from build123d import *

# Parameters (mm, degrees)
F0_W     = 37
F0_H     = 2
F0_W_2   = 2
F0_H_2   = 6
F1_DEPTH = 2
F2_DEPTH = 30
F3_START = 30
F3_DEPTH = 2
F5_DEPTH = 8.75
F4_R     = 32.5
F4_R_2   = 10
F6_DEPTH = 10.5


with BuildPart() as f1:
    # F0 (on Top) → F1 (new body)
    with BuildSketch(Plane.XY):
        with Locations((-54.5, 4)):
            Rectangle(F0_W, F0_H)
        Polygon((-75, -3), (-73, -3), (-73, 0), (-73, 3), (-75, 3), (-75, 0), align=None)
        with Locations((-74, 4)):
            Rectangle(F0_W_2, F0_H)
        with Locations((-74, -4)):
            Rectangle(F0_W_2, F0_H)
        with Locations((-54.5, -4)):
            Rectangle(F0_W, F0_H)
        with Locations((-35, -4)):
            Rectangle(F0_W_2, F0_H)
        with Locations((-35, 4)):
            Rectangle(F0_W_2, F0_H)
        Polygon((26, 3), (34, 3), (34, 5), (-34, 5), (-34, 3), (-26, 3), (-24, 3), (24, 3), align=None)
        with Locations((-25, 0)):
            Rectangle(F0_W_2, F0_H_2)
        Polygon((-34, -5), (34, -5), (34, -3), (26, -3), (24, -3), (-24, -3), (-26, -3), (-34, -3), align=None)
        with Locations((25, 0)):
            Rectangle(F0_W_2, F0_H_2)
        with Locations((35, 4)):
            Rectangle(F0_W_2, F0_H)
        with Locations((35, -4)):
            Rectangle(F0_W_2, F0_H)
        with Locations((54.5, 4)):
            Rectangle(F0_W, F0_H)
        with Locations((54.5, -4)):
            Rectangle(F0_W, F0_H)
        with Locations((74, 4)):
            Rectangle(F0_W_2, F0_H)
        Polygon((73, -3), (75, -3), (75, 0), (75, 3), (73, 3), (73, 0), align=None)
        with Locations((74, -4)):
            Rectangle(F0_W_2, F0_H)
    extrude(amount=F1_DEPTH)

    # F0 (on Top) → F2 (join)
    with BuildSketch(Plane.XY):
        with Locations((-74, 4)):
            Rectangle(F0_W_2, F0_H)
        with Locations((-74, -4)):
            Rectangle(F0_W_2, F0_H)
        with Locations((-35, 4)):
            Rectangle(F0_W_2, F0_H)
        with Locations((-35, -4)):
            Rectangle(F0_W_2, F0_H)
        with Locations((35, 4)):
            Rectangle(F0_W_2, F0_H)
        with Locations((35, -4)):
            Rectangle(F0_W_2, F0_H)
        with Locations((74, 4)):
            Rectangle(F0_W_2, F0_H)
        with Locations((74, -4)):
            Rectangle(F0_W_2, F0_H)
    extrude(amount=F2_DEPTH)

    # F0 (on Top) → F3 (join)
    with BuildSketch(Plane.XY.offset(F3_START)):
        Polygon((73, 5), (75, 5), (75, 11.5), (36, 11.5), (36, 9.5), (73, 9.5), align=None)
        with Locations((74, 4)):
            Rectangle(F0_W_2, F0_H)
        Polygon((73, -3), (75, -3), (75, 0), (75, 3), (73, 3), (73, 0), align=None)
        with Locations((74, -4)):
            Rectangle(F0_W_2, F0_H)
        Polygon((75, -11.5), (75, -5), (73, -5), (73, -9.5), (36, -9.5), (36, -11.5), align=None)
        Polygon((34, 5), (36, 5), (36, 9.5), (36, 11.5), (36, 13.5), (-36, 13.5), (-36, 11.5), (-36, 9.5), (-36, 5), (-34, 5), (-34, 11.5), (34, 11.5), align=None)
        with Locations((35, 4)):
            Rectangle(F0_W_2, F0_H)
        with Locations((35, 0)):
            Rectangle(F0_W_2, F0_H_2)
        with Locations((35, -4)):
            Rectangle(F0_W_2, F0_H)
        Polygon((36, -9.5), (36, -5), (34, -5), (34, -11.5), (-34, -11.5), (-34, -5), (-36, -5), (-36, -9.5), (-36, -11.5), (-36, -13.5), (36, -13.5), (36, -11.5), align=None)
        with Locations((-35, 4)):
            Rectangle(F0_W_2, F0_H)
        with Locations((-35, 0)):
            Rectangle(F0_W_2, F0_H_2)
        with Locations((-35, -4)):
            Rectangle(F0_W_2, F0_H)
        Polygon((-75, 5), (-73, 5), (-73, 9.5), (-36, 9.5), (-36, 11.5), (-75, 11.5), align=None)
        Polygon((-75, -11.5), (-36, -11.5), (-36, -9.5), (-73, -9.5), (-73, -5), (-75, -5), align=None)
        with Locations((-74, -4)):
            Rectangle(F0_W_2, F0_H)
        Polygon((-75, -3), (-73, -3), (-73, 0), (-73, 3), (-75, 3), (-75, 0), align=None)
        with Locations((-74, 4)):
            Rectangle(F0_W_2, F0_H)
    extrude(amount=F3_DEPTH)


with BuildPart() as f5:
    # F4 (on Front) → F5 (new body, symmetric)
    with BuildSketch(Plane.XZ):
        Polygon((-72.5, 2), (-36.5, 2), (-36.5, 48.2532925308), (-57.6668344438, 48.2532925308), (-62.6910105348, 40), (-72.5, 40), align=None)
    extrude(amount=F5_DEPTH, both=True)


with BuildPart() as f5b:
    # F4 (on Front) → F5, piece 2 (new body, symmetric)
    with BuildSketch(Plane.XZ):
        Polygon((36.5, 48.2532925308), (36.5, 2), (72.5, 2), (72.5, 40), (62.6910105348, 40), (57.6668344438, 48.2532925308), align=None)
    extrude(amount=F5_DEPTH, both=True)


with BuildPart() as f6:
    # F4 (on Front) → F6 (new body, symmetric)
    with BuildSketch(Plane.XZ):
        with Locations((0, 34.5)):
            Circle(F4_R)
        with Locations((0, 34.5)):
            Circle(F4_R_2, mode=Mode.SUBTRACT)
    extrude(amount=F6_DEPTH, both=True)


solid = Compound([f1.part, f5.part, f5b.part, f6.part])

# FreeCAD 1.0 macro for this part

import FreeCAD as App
import Part
import Sketcher

V = App.Vector
Q = App.Units.Quantity


def add_polygon(sketch, points):
    """Adds a closed chain of lines whose ends are joined by coincident constraints."""
    first, n = sketch.GeometryCount, len(points)
    for a, b in zip(points, points[1:] + points[:1]):
        sketch.addGeometry(Part.LineSegment(App.Vector(*a, 0), App.Vector(*b, 0)), False)
    for i in range(n):
        sketch.addConstraint(Sketcher.Constraint("Coincident", first + i, 2, first + (i + 1) % n, 1))

doc = App.newDocument("Part")
body = doc.addObject("PartDesign::Body", "Body")

sketch1 = doc.addObject("Sketcher::SketchObject", "Sketch")
body.addObject(sketch1)
sketch1.AttachmentSupport = (doc.XY_Plane, [""])
sketch1.MapMode = "FlatFace"
add_polygon(sketch1, [(-75, -5), (75, -5), (75, 5), (-75, 5)])
add_polygon(sketch1, [(-73, 3), (-26, 3), (-26, -3), (-73, -3)])
add_polygon(sketch1, [(-24, -3), (-24, 3), (24, 3), (24, -3)])
add_polygon(sketch1, [(73, 3), (73, -3), (26, -3), (26, 3)])
sketch1.addConstraint([
    Sketcher.Constraint("Horizontal", 0),
    Sketcher.Constraint("Vertical", 1),
    Sketcher.Constraint("Horizontal", 2),
    Sketcher.Constraint("Vertical", 3),
    Sketcher.Constraint("Horizontal", 4),
    Sketcher.Constraint("Vertical", 5),
    Sketcher.Constraint("Horizontal", 6),
    Sketcher.Constraint("Vertical", 7),
    Sketcher.Constraint("Vertical", 8),
    Sketcher.Constraint("Horizontal", 9),
    Sketcher.Constraint("Vertical", 10),
    Sketcher.Constraint("Horizontal", 11),
    Sketcher.Constraint("Vertical", 12),
    Sketcher.Constraint("Horizontal", 13),
    Sketcher.Constraint("Vertical", 14),
    Sketcher.Constraint("Horizontal", 15),
    Sketcher.Constraint("Symmetric", 0, 2, 2, 2, -1, 1),
    Sketcher.Constraint("Symmetric", 8, 2, 10, 2, -1, 1),
    Sketcher.Constraint("Symmetric", 7, 2, 12, 2, -1, 1),
    Sketcher.Constraint("Symmetric", 5, 2, 14, 2, -1, 1),
    Sketcher.Constraint("Horizontal", 7, 2, 8, 2),
    Sketcher.Constraint("Horizontal", 6, 2, 10, 2),
    Sketcher.Constraint("DistanceX", 0, 1, 0, 2, Q("150 mm")),
    Sketcher.Constraint("DistanceX", 4, 1, 4, 2, Q("47 mm")),
    Sketcher.Constraint("DistanceX", 9, 1, 9, 2, Q("48 mm")),
    Sketcher.Constraint("DistanceY", 1, 1, 1, 2, Q("10 mm")),
    Sketcher.Constraint("DistanceY", 5, 2, 5, 1, Q("6 mm")),
    Sketcher.Constraint("DistanceX", 4, 2, -1, 1, Q("26 mm")),
])
pad1 = doc.addObject("PartDesign::Pad", "Pad")
body.addObject(pad1)
pad1.Profile = sketch1
pad1.Length = 2

sketch2 = doc.addObject("Sketcher::SketchObject", "Sketch001")
body.addObject(sketch2)
sketch2.AttachmentSupport = (doc.XY_Plane, [""])
sketch2.MapMode = "FlatFace"
add_polygon(sketch2, [(-75, 5), (-75, 3), (-73, 3), (-73, 5)])
add_polygon(sketch2, [(-75, -3), (-75, -5), (-73, -5), (-73, -3)])
add_polygon(sketch2, [(-36, 5), (-36, 3), (-34, 3), (-34, 5)])
add_polygon(sketch2, [(-36, -3), (-36, -5), (-34, -5), (-34, -3)])
add_polygon(sketch2, [(34, 5), (34, 3), (36, 3), (36, 5)])
add_polygon(sketch2, [(34, -3), (34, -5), (36, -5), (36, -3)])
add_polygon(sketch2, [(73, 5), (73, 3), (75, 3), (75, 5)])
add_polygon(sketch2, [(73, -3), (73, -5), (75, -5), (75, -3)])
sketch2.addConstraint([
    Sketcher.Constraint("Vertical", 0),
    Sketcher.Constraint("Horizontal", 1),
    Sketcher.Constraint("Vertical", 2),
    Sketcher.Constraint("Horizontal", 3),
    Sketcher.Constraint("Vertical", 4),
    Sketcher.Constraint("Horizontal", 5),
    Sketcher.Constraint("Vertical", 6),
    Sketcher.Constraint("Horizontal", 7),
    Sketcher.Constraint("Vertical", 8),
    Sketcher.Constraint("Horizontal", 9),
    Sketcher.Constraint("Vertical", 10),
    Sketcher.Constraint("Horizontal", 11),
    Sketcher.Constraint("Vertical", 12),
    Sketcher.Constraint("Horizontal", 13),
    Sketcher.Constraint("Vertical", 14),
    Sketcher.Constraint("Horizontal", 15),
    Sketcher.Constraint("Vertical", 16),
    Sketcher.Constraint("Horizontal", 17),
    Sketcher.Constraint("Vertical", 18),
    Sketcher.Constraint("Horizontal", 19),
    Sketcher.Constraint("Vertical", 20),
    Sketcher.Constraint("Horizontal", 21),
    Sketcher.Constraint("Vertical", 22),
    Sketcher.Constraint("Horizontal", 23),
    Sketcher.Constraint("Vertical", 24),
    Sketcher.Constraint("Horizontal", 25),
    Sketcher.Constraint("Vertical", 26),
    Sketcher.Constraint("Horizontal", 27),
    Sketcher.Constraint("Vertical", 28),
    Sketcher.Constraint("Horizontal", 29),
    Sketcher.Constraint("Vertical", 30),
    Sketcher.Constraint("Horizontal", 31),
    Sketcher.Constraint("Symmetric", 14, 2, 16, 2, -1, 1),
    Sketcher.Constraint("Symmetric", 12, 2, 18, 2, -1, 1),
    Sketcher.Constraint("Symmetric", 10, 2, 20, 2, -1, 1),
    Sketcher.Constraint("Symmetric", 8, 2, 22, 2, -1, 1),
    Sketcher.Constraint("Symmetric", 6, 2, 24, 2, -1, 1),
    Sketcher.Constraint("Symmetric", 4, 2, 26, 2, -1, 1),
    Sketcher.Constraint("Symmetric", 2, 2, 28, 2, -1, 1),
    Sketcher.Constraint("Symmetric", 0, 2, 30, 2, -1, 1),
    Sketcher.Constraint("Symmetric", 9, 2, 16, 2, -2),
    Sketcher.Constraint("Symmetric", 11, 2, 18, 2, -2),
    Sketcher.Constraint("Symmetric", 1, 2, 24, 2, -2),
    Sketcher.Constraint("Symmetric", 3, 2, 26, 2, -2),
    Sketcher.Constraint("Horizontal", 1, 2, 8, 2),
    Sketcher.Constraint("Horizontal", 3, 2, 10, 2),
    Sketcher.Constraint("Equal", 7, 9),
    Sketcher.Constraint("Equal", 31, 0),
    Sketcher.Constraint("DistanceX", 1, 1, 1, 2, Q("2 mm")),
    Sketcher.Constraint("DistanceX", 0, 2, -1, 1, Q("75 mm")),
    Sketcher.Constraint("DistanceY", -1, 1, 0, 2, Q("3 mm")),
    Sketcher.Constraint("DistanceX", 8, 2, -1, 1, Q("36 mm")),
])
pad2 = doc.addObject("PartDesign::Pad", "Pad001")
body.addObject(pad2)
pad2.Profile = sketch2
pad2.Length = 30

sketch3 = doc.addObject("Sketcher::SketchObject", "Sketch002")
body.addObject(sketch3)
sketch3.AttachmentSupport = (doc.XY_Plane, [""])
sketch3.MapMode = "FlatFace"
sketch3.AttachmentOffset = App.Placement(V(0, 0, 30), App.Rotation())
add_polygon(sketch3, [(75, 11.5), (36, 11.5), (36, 13.5), (-36, 13.5), (-36, 11.5), (-75, 11.5), (-75, -11.5), (-36, -11.5), (-36, -13.5), (36, -13.5), (36, -11.5), (75, -11.5)])
add_polygon(sketch3, [(-73, 9.5), (-36, 9.5), (-36, -9.5), (-73, -9.5)])
add_polygon(sketch3, [(-34, 11.5), (34, 11.5), (34, -11.5), (-34, -11.5)])
add_polygon(sketch3, [(36, 9.5), (73, 9.5), (73, -9.5), (36, -9.5)])
sketch3.addConstraint([
    Sketcher.Constraint("Horizontal", 0),
    Sketcher.Constraint("Vertical", 1),
    Sketcher.Constraint("Horizontal", 2),
    Sketcher.Constraint("Vertical", 3),
    Sketcher.Constraint("Horizontal", 4),
    Sketcher.Constraint("Vertical", 5),
    Sketcher.Constraint("Horizontal", 6),
    Sketcher.Constraint("Vertical", 7),
    Sketcher.Constraint("Horizontal", 8),
    Sketcher.Constraint("Vertical", 9),
    Sketcher.Constraint("Horizontal", 10),
    Sketcher.Constraint("Vertical", 11),
    Sketcher.Constraint("Horizontal", 12),
    Sketcher.Constraint("Vertical", 13),
    Sketcher.Constraint("Horizontal", 14),
    Sketcher.Constraint("Vertical", 15),
    Sketcher.Constraint("Horizontal", 16),
    Sketcher.Constraint("Vertical", 17),
    Sketcher.Constraint("Horizontal", 18),
    Sketcher.Constraint("Vertical", 19),
    Sketcher.Constraint("Horizontal", 20),
    Sketcher.Constraint("Vertical", 21),
    Sketcher.Constraint("Horizontal", 22),
    Sketcher.Constraint("Vertical", 23),
    Sketcher.Constraint("Symmetric", 0, 2, 6, 2, -1, 1),
    Sketcher.Constraint("Symmetric", 2, 2, 8, 2, -1, 1),
    Sketcher.Constraint("Symmetric", 4, 2, 10, 2, -1, 1),
    Sketcher.Constraint("Symmetric", 16, 2, 18, 2, -1, 1),
    Sketcher.Constraint("Symmetric", 14, 2, 20, 2, -1, 1),
    Sketcher.Constraint("Symmetric", 12, 2, 22, 2, -1, 1),
    Sketcher.Constraint("Symmetric", 0, 2, 3, 2, -2),
    Sketcher.Constraint("Horizontal", 11, 2, 16, 2),
    Sketcher.Constraint("Horizontal", 15, 2, 20, 2),
    Sketcher.Constraint("Vertical", 7, 2, 12, 2),
    Sketcher.Constraint("DistanceX", 0, 2, 0, 1, Q("39 mm")),
    Sketcher.Constraint("DistanceX", 2, 2, 2, 1, Q("72 mm")),
    Sketcher.Constraint("DistanceX", 12, 1, 12, 2, Q("37 mm")),
    Sketcher.Constraint("DistanceX", 16, 1, 16, 2, Q("68 mm")),
    Sketcher.Constraint("DistanceY", 1, 1, 1, 2, Q("2 mm")),
    Sketcher.Constraint("DistanceY", 5, 2, 5, 1, Q("23 mm")),
    Sketcher.Constraint("DistanceY", 13, 2, 13, 1, Q("19 mm")),
])
pad3 = doc.addObject("PartDesign::Pad", "Pad002")
body.addObject(pad3)
pad3.Profile = sketch3
pad3.Length = 2
body2 = doc.addObject("PartDesign::Body", "Body001")

sketch4 = doc.addObject("Sketcher::SketchObject", "Sketch003")
body2.addObject(sketch4)
sketch4.AttachmentSupport = (doc.getObject("XZ_Plane001"), [""])
sketch4.MapMode = "FlatFace"
add_polygon(sketch4, [(-72, 2), (-36, 2), (-36, 48), (-58, 48), (-63, 40), (-72, 40)])
sketch4.addConstraint([
    Sketcher.Constraint("Horizontal", 0),
    Sketcher.Constraint("Vertical", 1),
    Sketcher.Constraint("Horizontal", 2),
    Sketcher.Constraint("Horizontal", 4),
    Sketcher.Constraint("Vertical", 5),
    Sketcher.Constraint("DistanceX", 0, 1, 0, 2, Q("36 mm")),
    Sketcher.Constraint("DistanceY", 5, 2, 5, 1, Q("38 mm")),
    Sketcher.Constraint("DistanceY", -1, 1, 0, 2, Q("2 mm")),
    Sketcher.Constraint("DistanceX", 0, 2, -1, 1, Q("36.5 mm")),
    Sketcher.Constraint("DistanceX", 4, 2, 4, 1, Q("9.808989 mm")),
    Sketcher.Constraint("DistanceX", 2, 2, 2, 1, Q("21.166834 mm")),
    Sketcher.Constraint("DistanceY", 1, 1, 1, 2, Q("46.253293 mm")),
])
pad4 = doc.addObject("PartDesign::Pad", "Pad003")
body2.addObject(pad4)
pad4.Profile = sketch4
pad4.Length = 17.5
pad4.Midplane = True
body3 = doc.addObject("PartDesign::Body", "Body002")

sketch5 = doc.addObject("Sketcher::SketchObject", "Sketch004")
body3.addObject(sketch5)
sketch5.AttachmentSupport = (doc.getObject("XZ_Plane002"), [""])
sketch5.MapMode = "FlatFace"
add_polygon(sketch5, [(36, 48), (36, 2), (72, 2), (72, 40), (63, 40), (58, 48)])
sketch5.addConstraint([
    Sketcher.Constraint("Vertical", 0),
    Sketcher.Constraint("Horizontal", 1),
    Sketcher.Constraint("Vertical", 2),
    Sketcher.Constraint("Horizontal", 3),
    Sketcher.Constraint("Horizontal", 5),
    Sketcher.Constraint("DistanceX", 1, 1, 1, 2, Q("36 mm")),
    Sketcher.Constraint("DistanceY", 2, 1, 2, 2, Q("38 mm")),
    Sketcher.Constraint("DistanceY", -1, 1, 0, 2, Q("2 mm")),
    Sketcher.Constraint("DistanceX", -1, 1, 0, 2, Q("36.5 mm")),
    Sketcher.Constraint("DistanceX", 3, 2, 3, 1, Q("9.808989 mm")),
    Sketcher.Constraint("DistanceX", 5, 2, 5, 1, Q("21.166834 mm")),
    Sketcher.Constraint("DistanceY", 0, 2, 0, 1, Q("46.253293 mm")),
])
pad5 = doc.addObject("PartDesign::Pad", "Pad004")
body3.addObject(pad5)
pad5.Profile = sketch5
pad5.Length = 17.5
pad5.Midplane = True
body4 = doc.addObject("PartDesign::Body", "Body003")

sketch6 = doc.addObject("Sketcher::SketchObject", "Sketch005")
body4.addObject(sketch6)
sketch6.AttachmentSupport = (doc.getObject("XZ_Plane003"), [""])
sketch6.MapMode = "FlatFace"
sketch6.addGeometry([
    Part.Circle(V(0, 34, 0), V(0, 0, 1), 32),
    Part.Circle(V(0, 34, 0), V(0, 0, 1), 10),
], False)
sketch6.addConstraint([
    Sketcher.Constraint("Coincident", 1, 3, 0, 3),
    Sketcher.Constraint("PointOnObject", 0, 3, -2),
    Sketcher.Constraint("Diameter", 0, Q("65 mm")),
    Sketcher.Constraint("Diameter", 1, Q("20 mm")),
    Sketcher.Constraint("DistanceY", -1, 1, 0, 3, Q("34.5 mm")),
])
pad6 = doc.addObject("PartDesign::Pad", "Pad005")
body4.addObject(pad6)
pad6.Profile = sketch6
pad6.Length = 21
pad6.Midplane = True

doc.recompute()
